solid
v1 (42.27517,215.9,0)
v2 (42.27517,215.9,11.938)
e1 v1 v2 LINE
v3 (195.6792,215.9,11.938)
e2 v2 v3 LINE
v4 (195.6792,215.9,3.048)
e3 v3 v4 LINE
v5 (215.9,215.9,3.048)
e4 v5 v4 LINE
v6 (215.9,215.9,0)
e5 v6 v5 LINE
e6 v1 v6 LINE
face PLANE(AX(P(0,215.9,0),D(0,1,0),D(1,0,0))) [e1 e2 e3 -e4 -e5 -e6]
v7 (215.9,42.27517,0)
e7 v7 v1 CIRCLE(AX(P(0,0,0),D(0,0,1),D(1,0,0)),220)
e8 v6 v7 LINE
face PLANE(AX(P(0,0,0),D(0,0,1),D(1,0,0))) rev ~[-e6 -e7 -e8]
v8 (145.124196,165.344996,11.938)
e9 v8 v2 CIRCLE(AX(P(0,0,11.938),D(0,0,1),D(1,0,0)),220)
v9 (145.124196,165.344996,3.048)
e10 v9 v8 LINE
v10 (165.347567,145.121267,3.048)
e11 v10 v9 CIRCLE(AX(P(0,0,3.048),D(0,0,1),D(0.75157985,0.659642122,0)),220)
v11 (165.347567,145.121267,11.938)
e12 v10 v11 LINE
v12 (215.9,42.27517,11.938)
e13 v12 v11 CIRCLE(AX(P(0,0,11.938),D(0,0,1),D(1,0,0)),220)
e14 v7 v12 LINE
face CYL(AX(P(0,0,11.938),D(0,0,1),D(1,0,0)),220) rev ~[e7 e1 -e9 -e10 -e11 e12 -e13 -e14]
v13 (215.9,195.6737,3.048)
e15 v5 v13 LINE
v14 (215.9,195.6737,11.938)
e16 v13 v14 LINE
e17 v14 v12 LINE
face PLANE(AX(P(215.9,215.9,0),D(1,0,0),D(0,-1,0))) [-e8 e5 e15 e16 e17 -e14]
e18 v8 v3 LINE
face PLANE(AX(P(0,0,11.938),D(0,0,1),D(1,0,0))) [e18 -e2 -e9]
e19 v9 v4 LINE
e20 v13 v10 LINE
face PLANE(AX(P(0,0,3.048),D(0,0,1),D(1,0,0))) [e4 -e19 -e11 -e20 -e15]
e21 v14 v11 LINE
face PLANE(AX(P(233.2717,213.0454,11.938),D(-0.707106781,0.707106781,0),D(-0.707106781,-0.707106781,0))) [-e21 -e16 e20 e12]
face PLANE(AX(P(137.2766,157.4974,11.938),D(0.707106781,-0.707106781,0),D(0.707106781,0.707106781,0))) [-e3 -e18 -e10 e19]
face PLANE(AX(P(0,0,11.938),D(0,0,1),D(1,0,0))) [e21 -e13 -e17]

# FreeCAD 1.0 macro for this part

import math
import FreeCAD as App
import Part
import Sketcher
Q = App.Units.Quantity


def add_polygon(sketch, points):
    """Adds a closed chain of lines whose ends are joined by coincident constraints."""
    first, n = sketch.GeometryCount, len(points)
    for a, b in zip(points, points[1:] + points[:1]):
        sketch.addGeometry(Part.LineSegment(App.Vector(*a, 0), App.Vector(*b, 0)), False)
    for i in range(n):
        sketch.addConstraint(Sketcher.Constraint("Coincident", first + i, 2, first + (i + 1) % n, 1))

doc = App.newDocument("Part")
params = doc.addObject("Spreadsheet::Sheet", "Params")
for row, (alias, value) in enumerate([
    ("sketch1_radius", "8.5 in"),
    ("pad1_length", "0.47 in"),
    ("sketch3_length", "1 in"),
    ("sketch3_width", "0.707 in"),
    ("pocket2_length", "0.35 in"),
    ("sketch4_length", "1.126 in"),
    ("pocket3_length", "0.35 in"),
], start=1):
    params.set(f"A{row}", alias)
    params.set(f"B{row}", "=" + value)
    params.setAlias(f"B{row}", alias)

body = doc.addObject("PartDesign::Body", "Body")

# Sketch on XY plane
sketch1 = doc.addObject("Sketcher::SketchObject", "Sketch")
body.addObject(sketch1)
sketch1.AttachmentSupport = (doc.XY_Plane, [""])
sketch1.MapMode = "FlatFace"
sketch1.addGeometry([
    Part.ArcOfCircle(Part.Circle(App.Vector(0, 0, 0), App.Vector(0, 0, 1), 216), math.radians(0), math.radians(90)),
    Part.LineSegment(App.Vector(216, 0, 0), App.Vector(216, 216, 0)),
    Part.LineSegment(App.Vector(216, 216, 0), App.Vector(0, 216, 0)),
], False)
sketch1.addConstraint([
    Sketcher.Constraint("Tangent", 0, 1, 1, 1),
    Sketcher.Constraint("Coincident", 1, 2, 2, 1),
    Sketcher.Constraint("Tangent", 2, 2, 0, 2),
    Sketcher.Constraint("Vertical", 1),
    Sketcher.Constraint("Horizontal", 2),
    Sketcher.Constraint("Coincident", 0, 3, -1, 1),
    Sketcher.Constraint("Radius", 0, Q("8.5 in")),
])
sketch1.setExpression("Constraints[6]", "Params.sketch1_radius")
pad1 = doc.addObject("PartDesign::Pad", "Pad")
body.addObject(pad1)
pad1.Profile = sketch1
pad1.setExpression("Length", "Params.pad1_length")

# Sketch on XY plane
sketch2 = doc.addObject("Sketcher::SketchObject", "Sketch001")
body.addObject(sketch2)
sketch2.AttachmentSupport = (doc.XY_Plane, [""])
sketch2.MapMode = "FlatFace"
sketch2.AttachmentOffset = App.Placement(App.Vector(0, 0, 0.47 * 25.4), App.Rotation())
sketch2.addGeometry(Part.Circle(App.Vector(0, 0, 0), App.Vector(0, 0, 1), 220), False)
sketch2.addConstraint([
    Sketcher.Constraint("Coincident", 0, 3, -1, 1),
    Sketcher.Constraint("Diameter", 0, Q("440 mm")),
])
pocket1 = doc.addObject("PartDesign::Pocket", "Pocket")
body.addObject(pocket1)
pocket1.Profile = sketch2
pocket1.Type = "ThroughAll"

# Sketch on XY plane
sketch3 = doc.addObject("Sketcher::SketchObject", "Sketch002")
body.addObject(sketch3)
sketch3.AttachmentSupport = (doc.XY_Plane, [""])
sketch3.MapMode = "FlatFace"
sketch3.AttachmentOffset = App.Placement(App.Vector(0, 0, 0.47 * 25.4), App.Rotation())
add_polygon(sketch3, [(216, 198), (216, 216), (198, 216), (117, 135), (135, 117)])  # lines 0-4
sketch3.addConstraint([
    Sketcher.Constraint("Vertical", 0),
    Sketcher.Constraint("Horizontal", 1),
    Sketcher.Constraint("Perpendicular", 2, 3),
    Sketcher.Constraint("Perpendicular", 3, 4),
    Sketcher.Constraint("Distance", 3, Q("1 in")),
    Sketcher.Constraint("Angle", 2, Q("-135 deg")),
    Sketcher.Constraint("DistanceX", 1, 2, 1, 1, Q("0.707 in")),
    Sketcher.Constraint("DistanceX", -1, 1, 0, 2, Q("8.5 in")),
    Sketcher.Constraint("DistanceY", -1, 1, 0, 2, Q("8.5 in")),
    Sketcher.Constraint("Distance", 2, Q("114.302 mm")),
])
sketch3.setExpression("Constraints[9]", "Params.sketch3_length")
sketch3.setExpression("Constraints[11]", "Params.sketch3_width")
pocket2 = doc.addObject("PartDesign::Pocket", "Pocket001")
body.addObject(pocket2)
pocket2.Profile = sketch3
pocket2.setExpression("Length", "Params.pocket2_length")

# Sketch on XY plane
sketch4 = doc.addObject("Sketcher::SketchObject", "Sketch003")
body.addObject(sketch4)
sketch4.AttachmentSupport = (doc.XY_Plane, [""])
sketch4.MapMode = "FlatFace"
sketch4.AttachmentOffset = App.Placement(App.Vector(0, 0, 0.47 * 25.4), App.Rotation())
add_polygon(sketch4, [(212, 232), (137, 157), (158, 137), (233, 213)])  # lines 0-3
sketch4.addConstraint([
    Sketcher.Constraint("Perpendicular", 0, 1),
    Sketcher.Constraint("Perpendicular", 1, 2),
    Sketcher.Constraint("Angle", 0, Q("-135 deg")),
    Sketcher.Constraint("Angle", 3, Q("139.3198 deg")),
    Sketcher.Constraint("Distance", 1, Q("1.126 in")),
    Sketcher.Constraint("DistanceX", 0, 2, 3, 2, Q("2.923 in")),
    Sketcher.Constraint("DistanceX", -1, 1, 0, 2, Q("5.4046 in")),
    Sketcher.Constraint("DistanceY", -1, 1, 0, 2, Q("157.4974 mm")),
])
sketch4.setExpression("Constraints[8]", "Params.sketch4_length")
pocket3 = doc.addObject("PartDesign::Pocket", "Pocket002")
body.addObject(pocket3)
pocket3.Profile = sketch4
pocket3.setExpression("Length", "Params.pocket3_length")

doc.recompute()
